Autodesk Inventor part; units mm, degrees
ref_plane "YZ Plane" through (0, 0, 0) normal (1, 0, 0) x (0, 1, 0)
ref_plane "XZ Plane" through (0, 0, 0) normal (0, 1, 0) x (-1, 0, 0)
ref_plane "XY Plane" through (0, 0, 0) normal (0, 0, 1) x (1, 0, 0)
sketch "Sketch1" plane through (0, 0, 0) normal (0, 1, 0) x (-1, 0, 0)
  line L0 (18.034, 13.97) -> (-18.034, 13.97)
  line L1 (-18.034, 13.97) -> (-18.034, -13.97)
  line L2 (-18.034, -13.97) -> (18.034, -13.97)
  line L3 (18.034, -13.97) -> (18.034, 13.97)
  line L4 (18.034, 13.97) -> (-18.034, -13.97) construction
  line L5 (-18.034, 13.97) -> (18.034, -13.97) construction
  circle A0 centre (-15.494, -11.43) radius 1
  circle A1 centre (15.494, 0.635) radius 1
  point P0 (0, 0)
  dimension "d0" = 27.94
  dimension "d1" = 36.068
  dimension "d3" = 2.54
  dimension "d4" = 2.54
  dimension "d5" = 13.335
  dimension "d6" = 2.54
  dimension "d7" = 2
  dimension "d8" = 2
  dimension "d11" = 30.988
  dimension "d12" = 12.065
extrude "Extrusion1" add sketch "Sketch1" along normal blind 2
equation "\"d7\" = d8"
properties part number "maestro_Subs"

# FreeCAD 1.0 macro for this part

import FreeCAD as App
import Part
import Sketcher

V = App.Vector
Q = App.Units.Quantity


def add_polygon(sketch, points):
    """Adds a closed chain of lines whose ends are joined by coincident constraints."""
    first, n = sketch.GeometryCount, len(points)
    for a, b in zip(points, points[1:] + points[:1]):
        sketch.addGeometry(Part.LineSegment(App.Vector(*a, 0), App.Vector(*b, 0)), False)
    for i in range(n):
        sketch.addConstraint(Sketcher.Constraint("Coincident", first + i, 2, first + (i + 1) % n, 1))

doc = App.newDocument("Part")
body = doc.addObject("PartDesign::Body", "Body")

sketch1 = doc.addObject("Sketcher::SketchObject", "Sketch")
body.addObject(sketch1)
sketch1.AttachmentSupport = (doc.XZ_Plane, [""])
sketch1.MapMode = "FlatFace"
add_polygon(sketch1, [(-18.034, -13.97), (-18.034, 13.97), (18.034, 13.97), (18.034, -13.97)])
sketch1.addGeometry(Part.Circle(V(15.494, -11.43, 0), V(0, 0, 1), 1), False)
sketch1.addGeometry(Part.Circle(V(-15.494, 0.635, 0), V(0, 0, 1), 1), False)
sketch1.addConstraint([
    Sketcher.Constraint("Vertical", 0),
    Sketcher.Constraint("Horizontal", 1),
    Sketcher.Constraint("Vertical", 2),
    Sketcher.Constraint("Horizontal", 3),
    Sketcher.Constraint("Equal", 4, 5),
    Sketcher.Constraint("Symmetric", 0, 2, 2, 2, -1, 1),
    Sketcher.Constraint("DistanceY", 0, 1, 0, 2, Q("1.1 in")),
    Sketcher.Constraint("DistanceX", 1, 1, 1, 2, Q("1.42 in")),
    Sketcher.Constraint("DistanceX", 0, 2, 5, 3, Q("0.1 in")),
    Sketcher.Constraint("DistanceX", 4, 3, 1, 2, Q("0.1 in")),
    Sketcher.Constraint("DistanceY", 2, 2, 4, 3, Q("0.1 in")),
    Sketcher.Constraint("Diameter", 4, Q("2 mm")),
    Sketcher.Constraint("DistanceY", 4, 3, 5, 3, Q("0.475 in")),
])
pad1 = doc.addObject("PartDesign::Pad", "Pad")
body.addObject(pad1)
pad1.Profile = sketch1
pad1.Length = 2
pad1.Reversed = True

doc.recompute()
